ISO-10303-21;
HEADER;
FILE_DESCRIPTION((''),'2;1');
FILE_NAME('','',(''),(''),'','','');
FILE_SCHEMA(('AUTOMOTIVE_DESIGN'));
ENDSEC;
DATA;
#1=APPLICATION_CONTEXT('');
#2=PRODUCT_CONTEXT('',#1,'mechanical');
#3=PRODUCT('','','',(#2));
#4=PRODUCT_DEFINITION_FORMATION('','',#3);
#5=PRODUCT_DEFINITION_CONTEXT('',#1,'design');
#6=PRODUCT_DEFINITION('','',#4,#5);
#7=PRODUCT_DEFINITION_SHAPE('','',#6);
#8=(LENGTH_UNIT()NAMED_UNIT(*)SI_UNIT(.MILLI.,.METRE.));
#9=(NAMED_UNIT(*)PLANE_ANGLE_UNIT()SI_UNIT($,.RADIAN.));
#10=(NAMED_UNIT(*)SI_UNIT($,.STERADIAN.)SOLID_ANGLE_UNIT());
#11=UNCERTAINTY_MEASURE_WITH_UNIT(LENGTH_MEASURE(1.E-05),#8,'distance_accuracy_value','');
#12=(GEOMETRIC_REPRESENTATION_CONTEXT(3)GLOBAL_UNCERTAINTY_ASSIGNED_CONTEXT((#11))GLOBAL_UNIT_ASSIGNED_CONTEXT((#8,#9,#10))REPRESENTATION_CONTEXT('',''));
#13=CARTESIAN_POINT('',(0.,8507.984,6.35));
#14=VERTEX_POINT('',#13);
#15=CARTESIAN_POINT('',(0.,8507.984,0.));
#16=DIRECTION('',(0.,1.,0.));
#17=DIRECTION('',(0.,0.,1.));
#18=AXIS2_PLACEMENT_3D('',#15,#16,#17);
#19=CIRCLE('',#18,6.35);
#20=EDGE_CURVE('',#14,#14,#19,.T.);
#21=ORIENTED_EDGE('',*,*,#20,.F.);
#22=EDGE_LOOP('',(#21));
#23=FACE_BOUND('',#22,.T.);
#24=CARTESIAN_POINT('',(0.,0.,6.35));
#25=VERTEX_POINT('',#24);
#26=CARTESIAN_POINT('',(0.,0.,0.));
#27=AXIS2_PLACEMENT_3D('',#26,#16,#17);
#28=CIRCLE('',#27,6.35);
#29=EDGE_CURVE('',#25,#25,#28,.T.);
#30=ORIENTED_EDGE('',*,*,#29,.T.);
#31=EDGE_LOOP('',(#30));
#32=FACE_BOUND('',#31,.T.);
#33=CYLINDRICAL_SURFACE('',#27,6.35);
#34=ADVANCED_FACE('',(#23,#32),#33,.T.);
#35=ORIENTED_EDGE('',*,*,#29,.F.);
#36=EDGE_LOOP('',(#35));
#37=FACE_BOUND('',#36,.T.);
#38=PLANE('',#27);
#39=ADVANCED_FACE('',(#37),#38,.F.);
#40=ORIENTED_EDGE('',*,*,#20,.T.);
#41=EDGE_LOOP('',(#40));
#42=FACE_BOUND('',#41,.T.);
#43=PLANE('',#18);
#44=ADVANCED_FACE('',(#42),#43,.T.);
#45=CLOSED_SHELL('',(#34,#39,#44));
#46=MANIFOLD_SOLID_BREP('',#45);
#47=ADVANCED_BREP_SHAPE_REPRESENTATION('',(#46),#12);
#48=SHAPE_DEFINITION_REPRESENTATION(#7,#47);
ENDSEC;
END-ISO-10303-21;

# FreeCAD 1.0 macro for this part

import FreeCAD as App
import Part
import Sketcher

V = App.Vector
Q = App.Units.Quantity

doc = App.newDocument("Part")
body = doc.addObject("PartDesign::Body", "Body")

# Sketch on XZ plane
sketch1 = body.newObject("Sketcher::SketchObject", "Sketch")
sketch1.AttachmentSupport = (doc.getObject("XZ_Plane"), [""])
sketch1.MapMode = "FlatFace"
sketch1.addGeometry(Part.Circle(V(0, 0, 0), V(0, 0, 1), 6), False)
sketch1.addConstraint([
    Sketcher.Constraint("Coincident", 0, 3, -1, 1),
    Sketcher.Constraint("Diameter", 0, Q("0.5 in")),
])

# Sketch on XY plane
sketch2 = body.newObject("Sketcher::SketchObject", "Sketch001")
sketch2.AttachmentSupport = (doc.getObject("XY_Plane"), [""])
sketch2.MapMode = "FlatFace"
sketch2.addGeometry(Part.LineSegment(V(0, 0, 0), V(0, 8508, 0)), False)
sketch2.addConstraint([
    Sketcher.Constraint("Vertical", 0),
    Sketcher.Constraint("Coincident", 0, 1, -1, 1),
    Sketcher.Constraint("DistanceY", 0, 1, 0, 2, Q("334.96 in")),
])
doc.recompute()

additivepipe = body.newObject("PartDesign::AdditivePipe", "AdditivePipe")
additivepipe.Profile = sketch1
additivepipe.Spine = (sketch2, ["Edge1"])

doc.recompute()
